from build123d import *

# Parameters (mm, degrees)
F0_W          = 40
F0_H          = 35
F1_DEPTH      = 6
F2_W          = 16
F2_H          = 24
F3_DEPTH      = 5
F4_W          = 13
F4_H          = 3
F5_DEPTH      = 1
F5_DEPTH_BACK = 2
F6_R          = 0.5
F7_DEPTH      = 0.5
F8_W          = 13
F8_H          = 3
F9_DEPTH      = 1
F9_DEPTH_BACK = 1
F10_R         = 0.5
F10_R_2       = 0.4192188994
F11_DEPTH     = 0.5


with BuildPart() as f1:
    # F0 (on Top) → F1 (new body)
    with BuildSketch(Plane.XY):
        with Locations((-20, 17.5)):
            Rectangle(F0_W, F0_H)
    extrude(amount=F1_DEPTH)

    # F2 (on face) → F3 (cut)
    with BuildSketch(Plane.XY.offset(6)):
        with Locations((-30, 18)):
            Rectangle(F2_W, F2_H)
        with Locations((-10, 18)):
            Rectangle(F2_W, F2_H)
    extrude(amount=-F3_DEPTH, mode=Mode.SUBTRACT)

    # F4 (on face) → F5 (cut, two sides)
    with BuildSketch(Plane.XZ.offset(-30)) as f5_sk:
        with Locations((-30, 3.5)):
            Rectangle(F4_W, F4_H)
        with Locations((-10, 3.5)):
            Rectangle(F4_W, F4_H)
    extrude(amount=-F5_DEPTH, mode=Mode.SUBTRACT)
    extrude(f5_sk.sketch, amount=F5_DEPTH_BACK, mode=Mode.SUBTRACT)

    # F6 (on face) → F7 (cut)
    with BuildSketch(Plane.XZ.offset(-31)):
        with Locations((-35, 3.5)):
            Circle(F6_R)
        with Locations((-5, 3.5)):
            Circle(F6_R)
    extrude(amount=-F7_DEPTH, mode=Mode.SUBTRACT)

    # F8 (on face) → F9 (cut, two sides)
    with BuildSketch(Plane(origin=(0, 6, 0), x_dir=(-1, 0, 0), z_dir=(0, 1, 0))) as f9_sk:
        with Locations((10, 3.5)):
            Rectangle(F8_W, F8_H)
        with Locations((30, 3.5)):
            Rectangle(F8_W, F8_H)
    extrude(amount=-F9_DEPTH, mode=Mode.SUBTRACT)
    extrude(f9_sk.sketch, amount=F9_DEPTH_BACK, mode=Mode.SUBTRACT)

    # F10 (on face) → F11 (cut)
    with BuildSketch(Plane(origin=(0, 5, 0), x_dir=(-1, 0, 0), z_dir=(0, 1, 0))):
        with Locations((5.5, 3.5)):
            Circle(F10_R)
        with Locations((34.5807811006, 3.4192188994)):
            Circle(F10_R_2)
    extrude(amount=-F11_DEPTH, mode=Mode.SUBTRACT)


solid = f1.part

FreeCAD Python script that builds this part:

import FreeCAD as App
import Part
import Sketcher

V = App.Vector
Q = App.Units.Quantity

doc = App.newDocument("Part")
params = doc.addObject("Spreadsheet::Sheet", "Params")
for row, (alias, value) in enumerate([
    ("sketch1_width", "40 mm"),
    ("sketch1_height", "35 mm"),
    ("pad1_length", "6 mm"),
    ("sketch2_width", "16 mm"),
    ("sketch2_height", "24 mm"),
    ("pocket1_length", "5 mm"),
    ("sketch3_width", "13 mm"),
    ("sketch3_height", "3 mm"),
    ("pocket2_length", "1 mm"),
    ("pocket2_length2", "2 mm"),
    ("sketch4_diameter", "1 mm"),
    ("pocket3_length", "0.5 mm"),
    ("sketch5_width", "13 mm"),
    ("sketch5_height", "3 mm"),
    ("pocket4_length", "1 mm"),
    ("pocket4_length2", "1 mm"),
    ("sketch6_diameter", "1 mm"),
    ("pocket5_length", "0.5 mm"),
], start=1):
    params.set(f"A{row}", alias)
    params.set(f"B{row}", "=" + value)
    params.setAlias(f"B{row}", alias)

body = doc.addObject("PartDesign::Body", "Body")

# Sketch on XY plane
sketch1 = doc.addObject("Sketcher::SketchObject", "Sketch")
body.addObject(sketch1)
sketch1.AttachmentSupport = (doc.XY_Plane, [""])
sketch1.MapMode = "FlatFace"
sketch1.addGeometry([
    Part.LineSegment(V(-40, 35, 0), V(-40, 0, 0)),
    Part.LineSegment(V(-40, 0, 0), V(0, 0, 0)),
    Part.LineSegment(V(0, 0, 0), V(0, 35, 0)),
    Part.LineSegment(V(0, 35, 0), V(-40, 35, 0)),
], False)
sketch1.addConstraint([
    Sketcher.Constraint("Coincident", 0, 2, 1, 1),
    Sketcher.Constraint("Coincident", 1, 2, 2, 1),
    Sketcher.Constraint("Coincident", 2, 2, 3, 1),
    Sketcher.Constraint("Coincident", 3, 2, 0, 1),
    Sketcher.Constraint("Vertical", 0),
    Sketcher.Constraint("Horizontal", 1),
    Sketcher.Constraint("Vertical", 2),
    Sketcher.Constraint("Horizontal", 3),
    Sketcher.Constraint("Coincident", 1, 2, -1, 1),
    Sketcher.Constraint("DistanceX", 1, 1, 1, 2, Q("40 mm")),
    Sketcher.Constraint("DistanceY", 0, 2, 0, 1, Q("35 mm")),
])
sketch1.setExpression("Constraints[9]", "Params.sketch1_width")
sketch1.setExpression("Constraints[10]", "Params.sketch1_height")
pad1 = doc.addObject("PartDesign::Pad", "Pad")
body.addObject(pad1)
pad1.Profile = sketch1
pad1.setExpression("Length", "Params.pad1_length")

# Sketch on XY plane
sketch2 = doc.addObject("Sketcher::SketchObject", "Sketch001")
body.addObject(sketch2)
sketch2.AttachmentSupport = (doc.XY_Plane, [""])
sketch2.MapMode = "FlatFace"
sketch2.AttachmentOffset = App.Placement(V(0, 0, 6), App.Rotation())
sketch2.addGeometry([
    Part.LineSegment(V(-38, 30, 0), V(-38, 6, 0)),  # 0
    Part.LineSegment(V(-38, 6, 0), V(-22, 6, 0)),  # 1
    Part.LineSegment(V(-22, 6, 0), V(-22, 30, 0)),  # 2
    Part.LineSegment(V(-22, 30, 0), V(-38, 30, 0)),  # 3
    Part.LineSegment(V(-18, 30, 0), V(-18, 6, 0)),  # 4
    Part.LineSegment(V(-18, 6, 0), V(-2, 6, 0)),  # 5
    Part.LineSegment(V(-2, 6, 0), V(-2, 30, 0)),  # 6
    Part.LineSegment(V(-2, 30, 0), V(-18, 30, 0)),  # 7
], False)
sketch2.addConstraint([
    Sketcher.Constraint("Coincident", 0, 2, 1, 1),
    Sketcher.Constraint("Coincident", 1, 2, 2, 1),
    Sketcher.Constraint("Coincident", 2, 2, 3, 1),
    Sketcher.Constraint("Coincident", 3, 2, 0, 1),
    Sketcher.Constraint("Coincident", 4, 2, 5, 1),
    Sketcher.Constraint("Coincident", 5, 2, 6, 1),
    Sketcher.Constraint("Coincident", 6, 2, 7, 1),
    Sketcher.Constraint("Coincident", 7, 2, 4, 1),
    Sketcher.Constraint("Vertical", 0),
    Sketcher.Constraint("Horizontal", 1),
    Sketcher.Constraint("Vertical", 2),
    Sketcher.Constraint("Horizontal", 3),
    Sketcher.Constraint("Vertical", 4),
    Sketcher.Constraint("Horizontal", 5),
    Sketcher.Constraint("Vertical", 6),
    Sketcher.Constraint("Horizontal", 7),
    Sketcher.Constraint("Horizontal", 1, 2, 4, 2),
    Sketcher.Constraint("Horizontal", 3, 2, 6, 2),
    Sketcher.Constraint("Equal", 3, 5),
    Sketcher.Constraint("DistanceX", 1, 1, 1, 2, Q("16 mm")),
    Sketcher.Constraint("DistanceY", 0, 2, 0, 1, Q("24 mm")),
    Sketcher.Constraint("DistanceX", 0, 2, -1, 1, Q("38 mm")),
    Sketcher.Constraint("DistanceY", -1, 1, 0, 2, Q("6 mm")),
    Sketcher.Constraint("DistanceX", 4, 2, -1, 1, Q("18 mm")),
])
sketch2.setExpression("Constraints[19]", "Params.sketch2_width")
sketch2.setExpression("Constraints[20]", "Params.sketch2_height")
pocket1 = doc.addObject("PartDesign::Pocket", "Pocket")
body.addObject(pocket1)
pocket1.Profile = sketch2
pocket1.setExpression("Length", "Params.pocket1_length")

# Sketch on XZ plane
sketch3 = doc.addObject("Sketcher::SketchObject", "Sketch002")
body.addObject(sketch3)
sketch3.AttachmentSupport = (doc.XZ_Plane, [""])
sketch3.MapMode = "FlatFace"
sketch3.AttachmentOffset = App.Placement(V(0, 0, -30), App.Rotation())
sketch3.addGeometry([
    Part.LineSegment(V(-36.5, 5, 0), V(-36.5, 2, 0)),  # 0
    Part.LineSegment(V(-36.5, 2, 0), V(-23.5, 2, 0)),  # 1
    Part.LineSegment(V(-23.5, 2, 0), V(-23.5, 5, 0)),  # 2
    Part.LineSegment(V(-23.5, 5, 0), V(-36.5, 5, 0)),  # 3
    Part.LineSegment(V(-16.5, 5, 0), V(-16.5, 2, 0)),  # 4
    Part.LineSegment(V(-16.5, 2, 0), V(-3.5, 2, 0)),  # 5
    Part.LineSegment(V(-3.5, 2, 0), V(-3.5, 5, 0)),  # 6
    Part.LineSegment(V(-3.5, 5, 0), V(-16.5, 5, 0)),  # 7
], False)
sketch3.addConstraint([
    Sketcher.Constraint("Coincident", 0, 2, 1, 1),
    Sketcher.Constraint("Coincident", 1, 2, 2, 1),
    Sketcher.Constraint("Coincident", 2, 2, 3, 1),
    Sketcher.Constraint("Coincident", 3, 2, 0, 1),
    Sketcher.Constraint("Coincident", 4, 2, 5, 1),
    Sketcher.Constraint("Coincident", 5, 2, 6, 1),
    Sketcher.Constraint("Coincident", 6, 2, 7, 1),
    Sketcher.Constraint("Coincident", 7, 2, 4, 1),
    Sketcher.Constraint("Vertical", 0),
    Sketcher.Constraint("Horizontal", 1),
    Sketcher.Constraint("Vertical", 2),
    Sketcher.Constraint("Horizontal", 3),
    Sketcher.Constraint("Vertical", 4),
    Sketcher.Constraint("Horizontal", 5),
    Sketcher.Constraint("Vertical", 6),
    Sketcher.Constraint("Horizontal", 7),
    Sketcher.Constraint("Horizontal", 1, 2, 4, 2),
    Sketcher.Constraint("Horizontal", 3, 2, 6, 2),
    Sketcher.Constraint("Equal", 3, 5),
    Sketcher.Constraint("DistanceX", 1, 1, 1, 2, Q("13 mm")),
    Sketcher.Constraint("DistanceY", 0, 2, 0, 1, Q("3 mm")),
    Sketcher.Constraint("DistanceY", -1, 1, 0, 2, Q("2 mm")),
    Sketcher.Constraint("DistanceX", 1, 2, 4, 2, Q("7 mm")),
    Sketcher.Constraint("DistanceX", 0, 2, -1, 1, Q("36.5 mm")),
])
sketch3.setExpression("Constraints[19]", "Params.sketch3_width")
sketch3.setExpression("Constraints[20]", "Params.sketch3_height")
pocket2 = doc.addObject("PartDesign::Pocket", "Pocket001")
body.addObject(pocket2)
pocket2.Profile = sketch3
pocket2.Type = "TwoLengths"
pocket2.setExpression("Length", "Params.pocket2_length")
pocket2.setExpression("Length2", "Params.pocket2_length2")

# Sketch on XZ plane
sketch4 = doc.addObject("Sketcher::SketchObject", "Sketch003")
body.addObject(sketch4)
sketch4.AttachmentSupport = (doc.XZ_Plane, [""])
sketch4.MapMode = "FlatFace"
sketch4.AttachmentOffset = App.Placement(V(0, 0, -31), App.Rotation())
sketch4.addGeometry([
    Part.Circle(V(-35, 3.5, 0), V(0, 0, 1), 0.5),
    Part.Circle(V(-5, 3.5, 0), V(0, 0, 1), 0.5),
], False)
sketch4.addConstraint([
    Sketcher.Constraint("Equal", 0, 1),
    Sketcher.Constraint("Horizontal", 0, 3, 1, 3),
    Sketcher.Constraint("Diameter", 0, Q("1 mm")),
    Sketcher.Constraint("DistanceX", 0, 3, -1, 1, Q("35 mm")),
    Sketcher.Constraint("DistanceX", 1, 3, -1, 1, Q("5 mm")),
    Sketcher.Constraint("DistanceY", -1, 1, 0, 3, Q("3.5 mm")),
])
sketch4.setExpression("Constraints[2]", "Params.sketch4_diameter")
pocket3 = doc.addObject("PartDesign::Pocket", "Pocket002")
body.addObject(pocket3)
pocket3.Profile = sketch4
pocket3.setExpression("Length", "Params.pocket3_length")

# Sketch on XZ plane
sketch5 = doc.addObject("Sketcher::SketchObject", "Sketch004")
body.addObject(sketch5)
sketch5.AttachmentSupport = (doc.XZ_Plane, [""])
sketch5.MapMode = "FlatFace"
sketch5.AttachmentOffset = App.Placement(V(0, 0, -6), App.Rotation())
sketch5.addGeometry([
    Part.LineSegment(V(-3.5, 5, 0), V(-3.5, 2, 0)),  # 0
    Part.LineSegment(V(-3.5, 2, 0), V(-16.5, 2, 0)),  # 1
    Part.LineSegment(V(-16.5, 2, 0), V(-16.5, 5, 0)),  # 2
    Part.LineSegment(V(-16.5, 5, 0), V(-3.5, 5, 0)),  # 3
    Part.LineSegment(V(-23.5, 5, 0), V(-23.5, 2, 0)),  # 4
    Part.LineSegment(V(-23.5, 2, 0), V(-36.5, 2, 0)),  # 5
    Part.LineSegment(V(-36.5, 2, 0), V(-36.5, 5, 0)),  # 6
    Part.LineSegment(V(-36.5, 5, 0), V(-23.5, 5, 0)),  # 7
], False)
sketch5.addConstraint([
    Sketcher.Constraint("Coincident", 0, 2, 1, 1),
    Sketcher.Constraint("Coincident", 1, 2, 2, 1),
    Sketcher.Constraint("Coincident", 2, 2, 3, 1),
    Sketcher.Constraint("Coincident", 3, 2, 0, 1),
    Sketcher.Constraint("Coincident", 4, 2, 5, 1),
    Sketcher.Constraint("Coincident", 5, 2, 6, 1),
    Sketcher.Constraint("Coincident", 6, 2, 7, 1),
    Sketcher.Constraint("Coincident", 7, 2, 4, 1),
    Sketcher.Constraint("Vertical", 0),
    Sketcher.Constraint("Horizontal", 1),
    Sketcher.Constraint("Vertical", 2),
    Sketcher.Constraint("Horizontal", 3),
    Sketcher.Constraint("Vertical", 4),
    Sketcher.Constraint("Horizontal", 5),
    Sketcher.Constraint("Vertical", 6),
    Sketcher.Constraint("Horizontal", 7),
    Sketcher.Constraint("Horizontal", 1, 2, 4, 2),
    Sketcher.Constraint("Horizontal", 3, 2, 6, 2),
    Sketcher.Constraint("Equal", 3, 5),
    Sketcher.Constraint("DistanceX", 1, 2, 1, 1, Q("13 mm")),
    Sketcher.Constraint("DistanceY", 0, 2, 0, 1, Q("3 mm")),
    Sketcher.Constraint("DistanceY", -1, 1, 0, 2, Q("2 mm")),
    Sketcher.Constraint("DistanceX", 4, 2, 1, 2, Q("7 mm")),
    Sketcher.Constraint("DistanceX", 0, 2, -1, 1, Q("3.5 mm")),
])
sketch5.setExpression("Constraints[19]", "Params.sketch5_width")
sketch5.setExpression("Constraints[20]", "Params.sketch5_height")
pocket4 = doc.addObject("PartDesign::Pocket", "Pocket003")
body.addObject(pocket4)
pocket4.Profile = sketch5
pocket4.Type = "TwoLengths"
pocket4.setExpression("Length", "Params.pocket4_length")
pocket4.setExpression("Length2", "Params.pocket4_length2")
pocket4.Reversed = True

# Sketch on XZ plane
sketch6 = doc.addObject("Sketcher::SketchObject", "Sketch005")
body.addObject(sketch6)
sketch6.AttachmentSupport = (doc.XZ_Plane, [""])
sketch6.MapMode = "FlatFace"
sketch6.AttachmentOffset = App.Placement(V(0, 0, -5), App.Rotation())
sketch6.addGeometry([
    Part.Circle(V(-5.5, 3.5, 0), V(0, 0, 1), 0.5),
    Part.Circle(V(-34.58, 3.42, 0), V(0, 0, 1), 0.42),
], False)
sketch6.addConstraint([
    Sketcher.Constraint("Diameter", 0, Q("1 mm")),
    Sketcher.Constraint("DistanceX", 0, 3, -1, 1, Q("5.5 mm")),
    Sketcher.Constraint("DistanceY", -1, 1, 0, 3, Q("3.5 mm")),
    Sketcher.Constraint("Diameter", 1, Q("0.838438 mm")),
    Sketcher.Constraint("DistanceX", 1, 3, -1, 1, Q("34.580781 mm")),
    Sketcher.Constraint("DistanceY", -1, 1, 1, 3, Q("3.419219 mm")),
])
sketch6.setExpression("Constraints[0]", "Params.sketch6_diameter")
pocket5 = doc.addObject("PartDesign::Pocket", "Pocket004")
body.addObject(pocket5)
pocket5.Profile = sketch6
pocket5.setExpression("Length", "Params.pocket5_length")
pocket5.Reversed = True

doc.recompute()
